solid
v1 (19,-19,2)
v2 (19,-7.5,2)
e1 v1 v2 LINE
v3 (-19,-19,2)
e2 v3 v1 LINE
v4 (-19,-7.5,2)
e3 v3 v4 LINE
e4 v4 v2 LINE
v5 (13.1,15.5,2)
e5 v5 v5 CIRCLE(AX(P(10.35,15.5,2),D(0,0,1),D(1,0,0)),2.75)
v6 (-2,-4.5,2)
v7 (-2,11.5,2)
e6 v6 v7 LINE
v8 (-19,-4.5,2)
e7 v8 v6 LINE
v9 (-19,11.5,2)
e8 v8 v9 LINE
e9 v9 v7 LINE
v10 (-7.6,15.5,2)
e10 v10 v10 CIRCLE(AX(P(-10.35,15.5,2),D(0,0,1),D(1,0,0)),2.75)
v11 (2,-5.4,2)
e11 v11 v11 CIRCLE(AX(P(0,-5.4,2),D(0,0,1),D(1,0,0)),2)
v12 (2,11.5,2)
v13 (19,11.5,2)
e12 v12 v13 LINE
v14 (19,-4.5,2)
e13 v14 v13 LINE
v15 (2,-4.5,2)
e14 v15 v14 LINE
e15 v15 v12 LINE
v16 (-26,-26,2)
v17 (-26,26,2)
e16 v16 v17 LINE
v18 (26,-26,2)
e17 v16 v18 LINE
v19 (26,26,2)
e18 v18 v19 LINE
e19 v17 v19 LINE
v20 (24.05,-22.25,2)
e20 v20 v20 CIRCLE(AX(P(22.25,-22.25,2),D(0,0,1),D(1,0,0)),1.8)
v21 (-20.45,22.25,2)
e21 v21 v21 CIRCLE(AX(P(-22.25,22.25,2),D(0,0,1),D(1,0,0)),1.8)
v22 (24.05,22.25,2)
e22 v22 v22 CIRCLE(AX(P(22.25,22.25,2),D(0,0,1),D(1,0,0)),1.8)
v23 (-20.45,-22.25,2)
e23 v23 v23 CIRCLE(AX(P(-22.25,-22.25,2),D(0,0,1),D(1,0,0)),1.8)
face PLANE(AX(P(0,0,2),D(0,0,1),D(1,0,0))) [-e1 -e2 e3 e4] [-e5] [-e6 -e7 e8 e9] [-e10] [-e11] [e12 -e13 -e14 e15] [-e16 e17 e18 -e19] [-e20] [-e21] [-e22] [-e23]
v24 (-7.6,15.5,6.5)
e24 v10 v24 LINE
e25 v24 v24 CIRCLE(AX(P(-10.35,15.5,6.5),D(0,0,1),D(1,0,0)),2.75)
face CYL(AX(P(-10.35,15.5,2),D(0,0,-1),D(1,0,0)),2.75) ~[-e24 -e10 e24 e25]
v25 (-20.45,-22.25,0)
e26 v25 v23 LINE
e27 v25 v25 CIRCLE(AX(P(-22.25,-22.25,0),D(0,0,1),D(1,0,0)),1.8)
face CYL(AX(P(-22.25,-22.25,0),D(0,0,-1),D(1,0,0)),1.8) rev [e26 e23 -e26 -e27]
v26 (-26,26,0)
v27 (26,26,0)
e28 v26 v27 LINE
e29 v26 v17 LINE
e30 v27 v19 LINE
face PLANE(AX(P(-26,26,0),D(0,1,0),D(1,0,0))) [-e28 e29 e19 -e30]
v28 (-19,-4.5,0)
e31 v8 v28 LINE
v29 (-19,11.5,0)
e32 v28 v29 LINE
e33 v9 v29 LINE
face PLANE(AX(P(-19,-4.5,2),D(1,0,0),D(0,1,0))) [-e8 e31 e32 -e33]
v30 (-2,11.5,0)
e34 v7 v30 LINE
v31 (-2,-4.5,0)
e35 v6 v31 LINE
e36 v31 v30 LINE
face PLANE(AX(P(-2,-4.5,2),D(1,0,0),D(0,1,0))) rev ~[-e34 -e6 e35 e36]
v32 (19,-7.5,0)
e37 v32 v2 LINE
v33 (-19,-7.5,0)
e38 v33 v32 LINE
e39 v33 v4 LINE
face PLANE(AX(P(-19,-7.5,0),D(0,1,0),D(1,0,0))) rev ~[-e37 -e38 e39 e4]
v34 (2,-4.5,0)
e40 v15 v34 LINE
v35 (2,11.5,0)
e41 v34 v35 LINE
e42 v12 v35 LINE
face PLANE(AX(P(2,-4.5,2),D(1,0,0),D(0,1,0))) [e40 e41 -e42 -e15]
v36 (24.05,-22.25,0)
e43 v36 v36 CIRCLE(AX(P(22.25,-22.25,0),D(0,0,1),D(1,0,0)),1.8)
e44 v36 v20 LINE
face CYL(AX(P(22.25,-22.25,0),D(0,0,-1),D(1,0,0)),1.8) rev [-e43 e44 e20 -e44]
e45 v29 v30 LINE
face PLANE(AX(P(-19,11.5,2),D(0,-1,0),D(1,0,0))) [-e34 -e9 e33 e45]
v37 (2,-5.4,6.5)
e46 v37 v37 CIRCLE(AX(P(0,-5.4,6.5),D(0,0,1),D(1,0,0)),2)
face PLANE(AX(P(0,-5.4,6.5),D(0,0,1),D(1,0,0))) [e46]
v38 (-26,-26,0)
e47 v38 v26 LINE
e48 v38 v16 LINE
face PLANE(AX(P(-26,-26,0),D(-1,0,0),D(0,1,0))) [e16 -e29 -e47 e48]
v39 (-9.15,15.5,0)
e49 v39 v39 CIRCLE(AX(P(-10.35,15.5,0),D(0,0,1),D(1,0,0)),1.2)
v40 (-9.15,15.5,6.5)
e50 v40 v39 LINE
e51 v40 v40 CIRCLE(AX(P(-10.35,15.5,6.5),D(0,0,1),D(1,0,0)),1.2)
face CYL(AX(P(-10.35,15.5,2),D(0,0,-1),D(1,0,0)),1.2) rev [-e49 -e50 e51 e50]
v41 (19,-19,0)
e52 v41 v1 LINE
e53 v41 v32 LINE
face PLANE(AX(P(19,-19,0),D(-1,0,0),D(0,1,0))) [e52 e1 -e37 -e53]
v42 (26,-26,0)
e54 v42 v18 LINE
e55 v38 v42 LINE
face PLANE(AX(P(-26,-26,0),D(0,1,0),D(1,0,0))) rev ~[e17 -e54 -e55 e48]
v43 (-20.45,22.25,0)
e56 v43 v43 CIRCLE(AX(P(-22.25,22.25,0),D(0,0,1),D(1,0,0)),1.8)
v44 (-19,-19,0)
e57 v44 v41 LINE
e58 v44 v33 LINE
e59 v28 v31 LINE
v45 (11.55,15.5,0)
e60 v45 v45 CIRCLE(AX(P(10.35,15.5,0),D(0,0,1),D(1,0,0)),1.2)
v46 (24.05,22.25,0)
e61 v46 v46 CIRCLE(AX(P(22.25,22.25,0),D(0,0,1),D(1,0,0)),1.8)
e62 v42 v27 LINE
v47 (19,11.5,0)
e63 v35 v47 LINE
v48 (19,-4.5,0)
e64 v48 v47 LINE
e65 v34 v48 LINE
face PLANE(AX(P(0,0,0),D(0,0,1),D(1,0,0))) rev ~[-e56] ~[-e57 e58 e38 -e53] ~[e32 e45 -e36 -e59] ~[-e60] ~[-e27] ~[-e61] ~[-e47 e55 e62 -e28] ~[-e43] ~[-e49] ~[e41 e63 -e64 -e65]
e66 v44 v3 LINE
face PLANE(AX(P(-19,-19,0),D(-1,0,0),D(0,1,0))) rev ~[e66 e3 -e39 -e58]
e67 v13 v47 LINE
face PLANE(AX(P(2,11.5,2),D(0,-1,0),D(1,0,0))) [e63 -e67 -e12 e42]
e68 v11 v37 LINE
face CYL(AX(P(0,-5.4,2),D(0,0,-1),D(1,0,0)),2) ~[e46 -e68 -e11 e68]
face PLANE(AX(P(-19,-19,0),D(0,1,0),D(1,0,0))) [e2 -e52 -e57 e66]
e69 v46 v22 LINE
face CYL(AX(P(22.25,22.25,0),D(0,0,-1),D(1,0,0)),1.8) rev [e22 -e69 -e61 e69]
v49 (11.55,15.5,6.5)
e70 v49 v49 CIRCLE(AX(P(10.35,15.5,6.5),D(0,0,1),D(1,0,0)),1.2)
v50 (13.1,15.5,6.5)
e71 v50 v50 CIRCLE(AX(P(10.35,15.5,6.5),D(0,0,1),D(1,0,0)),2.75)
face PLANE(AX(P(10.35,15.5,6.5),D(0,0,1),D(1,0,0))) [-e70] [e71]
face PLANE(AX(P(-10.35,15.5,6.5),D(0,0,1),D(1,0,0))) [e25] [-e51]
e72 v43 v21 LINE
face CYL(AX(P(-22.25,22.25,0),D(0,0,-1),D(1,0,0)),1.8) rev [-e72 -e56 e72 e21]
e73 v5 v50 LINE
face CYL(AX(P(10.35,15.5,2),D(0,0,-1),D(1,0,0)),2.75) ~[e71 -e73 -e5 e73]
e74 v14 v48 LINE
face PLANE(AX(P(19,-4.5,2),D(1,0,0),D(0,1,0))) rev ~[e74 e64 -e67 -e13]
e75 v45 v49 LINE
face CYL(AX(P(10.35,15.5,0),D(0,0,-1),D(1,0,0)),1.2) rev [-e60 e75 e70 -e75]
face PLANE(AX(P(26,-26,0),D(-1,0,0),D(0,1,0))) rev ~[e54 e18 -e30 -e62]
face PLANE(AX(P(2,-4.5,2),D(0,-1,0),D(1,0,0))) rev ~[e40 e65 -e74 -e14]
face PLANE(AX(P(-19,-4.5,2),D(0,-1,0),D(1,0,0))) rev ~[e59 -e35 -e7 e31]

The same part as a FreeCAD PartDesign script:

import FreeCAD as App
import Part
import Sketcher
from FreeCAD import Vector
Q = App.Units.Quantity


def add_polygon(sketch, points):
    """Adds a closed chain of lines whose ends are joined by coincident constraints."""
    first, n = sketch.GeometryCount, len(points)
    for a, b in zip(points, points[1:] + points[:1]):
        sketch.addGeometry(Part.LineSegment(App.Vector(*a, 0), App.Vector(*b, 0)), False)
    for i in range(n):
        sketch.addConstraint(Sketcher.Constraint("Coincident", first + i, 2, first + (i + 1) % n, 1))

doc = App.newDocument("Part")
body = doc.addObject("PartDesign::Body", "Body")

# Sketch on XY plane
sketch1 = body.newObject("Sketcher::SketchObject", "Sketch")
sketch1.AttachmentSupport = (doc.getObject("XY_Plane"), [""])
sketch1.MapMode = "FlatFace"
add_polygon(sketch1, [(-26, 26), (-26, -26), (26, -26), (26, 26)])  # lines 0-3
sketch1.addGeometry(Part.Circle(Vector(-22.2, -22.2, 0), Vector(0, 0, 1), 1.8), False)  # 4
add_polygon(sketch1, [(19, -19), (-19, -19), (-19, -7.5), (19, -7.5)])  # lines 5-8
sketch1.addGeometry(Part.Circle(Vector(22.2, -22.2, 0), Vector(0, 0, 1), 1.8), False)  # 9
sketch1.addGeometry(Part.Circle(Vector(-22.2, 22.2, 0), Vector(0, 0, 1), 1.8), False)  # 10
sketch1.addGeometry(Part.Circle(Vector(-10.3, 15.5, 0), Vector(0, 0, 1), 1.2), False)  # 11
sketch1.addGeometry(Part.Circle(Vector(10.3, 15.5, 0), Vector(0, 0, 1), 1.2), False)  # 12
sketch1.addGeometry(Part.Circle(Vector(22.2, 22.2, 0), Vector(0, 0, 1), 1.8), False)  # 13
sketch1.addConstraint([
    Sketcher.Constraint("Vertical", 0),
    Sketcher.Constraint("Horizontal", 1),
    Sketcher.Constraint("Vertical", 2),
    Sketcher.Constraint("Horizontal", 3),
    Sketcher.Constraint("Horizontal", 5),
    Sketcher.Constraint("Vertical", 6),
    Sketcher.Constraint("Horizontal", 7),
    Sketcher.Constraint("Vertical", 8),
    Sketcher.Constraint("Equal", 4, 9),
    Sketcher.Constraint("Equal", 9, 10),
    Sketcher.Constraint("Equal", 11, 12),
    Sketcher.Constraint("Equal", 10, 13),
    Sketcher.Constraint("Symmetric", 9, 3, 10, 3, -1, 1),
    Sketcher.Constraint("Symmetric", 4, 3, 13, 3, -1, 1),
    Sketcher.Constraint("Symmetric", 0, 2, 2, 2, -1, 1),
    Sketcher.Constraint("Symmetric", 4, 3, 9, 3, -2),
    Sketcher.Constraint("Symmetric", 11, 3, 12, 3, -2),
    Sketcher.Constraint("Equal", 3, 0),
    Sketcher.Constraint("Diameter", 4, Q("3.6 mm")),
    Sketcher.Constraint("Diameter", 11, Q("2.4 mm")),
    Sketcher.Constraint("DistanceX", 1, 1, 1, 2, Q("52 mm")),
    Sketcher.Constraint("DistanceX", 5, 2, 5, 1, Q("38 mm")),
    Sketcher.Constraint("DistanceY", 6, 1, 6, 2, Q("11.5 mm")),
    Sketcher.Constraint("DistanceX", 5, 2, -1, 1, Q("19 mm")),
    Sketcher.Constraint("DistanceY", 5, 2, -1, 1, Q("19 mm")),
    Sketcher.Constraint("DistanceY", 6, 2, 11, 3, Q("23 mm")),
    Sketcher.Constraint("DistanceX", 4, 3, 9, 3, Q("44.5 mm")),
    Sketcher.Constraint("DistanceY", 4, 3, 10, 3, Q("44.5 mm")),
    Sketcher.Constraint("DistanceX", 10, 3, 11, 3, Q("11.9 mm")),
])
pad1 = body.newObject("PartDesign::Pad", "Pad")
pad1.Profile = sketch1
pad1.Length = 2

# Sketch on XY plane
sketch2 = body.newObject("Sketcher::SketchObject", "Sketch001")
sketch2.AttachmentSupport = (doc.getObject("XY_Plane"), [""])
sketch2.MapMode = "FlatFace"
sketch2.AttachmentOffset = App.Placement(Vector(0, 0, 2), App.Rotation())
sketch2.addGeometry([
    Part.Circle(Vector(0, -5.4, 0), Vector(0, 0, 1), 2),  # 0
    Part.Circle(Vector(-10.3, 15.5, 0), Vector(0, 0, 1), 2.8),  # 1
    Part.Circle(Vector(-10.3, 15.5, 0), Vector(0, 0, 1), 1.2),  # 2
    Part.Circle(Vector(10.3, 15.5, 0), Vector(0, 0, 1), 2.8),  # 3
    Part.Circle(Vector(10.3, 15.5, 0), Vector(0, 0, 1), 1.2),  # 4
], False)
sketch2.addConstraint([
    Sketcher.Constraint("Coincident", 2, 3, 1, 3),
    Sketcher.Constraint("Coincident", 4, 3, 3, 3),
    Sketcher.Constraint("Equal", 1, 3),
    Sketcher.Constraint("Equal", 2, 4),
    Sketcher.Constraint("Symmetric", 1, 3, 3, 3, -2),
    Sketcher.Constraint("PointOnObject", 0, 3, -2),
    Sketcher.Constraint("Diameter", 0, Q("4 mm")),
    Sketcher.Constraint("Diameter", 1, Q("5.5 mm")),
    Sketcher.Constraint("Diameter", 2, Q("2.4 mm")),
    Sketcher.Constraint("DistanceY", 0, 3, -1, 1, Q("5.4 mm")),
    Sketcher.Constraint("DistanceY", -1, 1, 1, 3, Q("15.5 mm")),
    Sketcher.Constraint("DistanceX", 1, 3, 3, 3, Q("20.7 mm")),
])
pad2 = body.newObject("PartDesign::Pad", "Pad001")
pad2.Profile = sketch2
pad2.Length = 4.5

# Sketch on XY plane
sketch3 = body.newObject("Sketcher::SketchObject", "Sketch002")
sketch3.AttachmentSupport = (doc.getObject("XY_Plane"), [""])
sketch3.MapMode = "FlatFace"
sketch3.AttachmentOffset = App.Placement(Vector(0, 0, 2), App.Rotation())
add_polygon(sketch3, [(-19, 12), (-19, -4), (-2, -4), (-2, 12)])  # lines 0-3
add_polygon(sketch3, [(2, 12), (2, -4), (19, -4), (19, 12)])  # lines 4-7
sketch3.addConstraint([
    Sketcher.Constraint("Vertical", 0),
    Sketcher.Constraint("Horizontal", 1),
    Sketcher.Constraint("Vertical", 2),
    Sketcher.Constraint("Horizontal", 3),
    Sketcher.Constraint("Vertical", 4),
    Sketcher.Constraint("Horizontal", 5),
    Sketcher.Constraint("Vertical", 6),
    Sketcher.Constraint("Horizontal", 7),
    Sketcher.Constraint("Symmetric", 1, 2, 4, 2, -2),
    Sketcher.Constraint("Symmetric", 3, 2, 6, 2, -2),
    Sketcher.Constraint("DistanceX", 1, 1, 1, 2, Q("17 mm")),
    Sketcher.Constraint("DistanceY", 0, 2, 0, 1, Q("16 mm")),
    Sketcher.Constraint("DistanceX", 0, 2, -1, 1, Q("19 mm")),
    Sketcher.Constraint("DistanceY", 0, 2, -1, 1, Q("4.5 mm")),
])
pocket1 = body.newObject("PartDesign::Pocket", "Pocket")
pocket1.Profile = sketch3
pocket1.Length = 5

doc.recompute()
